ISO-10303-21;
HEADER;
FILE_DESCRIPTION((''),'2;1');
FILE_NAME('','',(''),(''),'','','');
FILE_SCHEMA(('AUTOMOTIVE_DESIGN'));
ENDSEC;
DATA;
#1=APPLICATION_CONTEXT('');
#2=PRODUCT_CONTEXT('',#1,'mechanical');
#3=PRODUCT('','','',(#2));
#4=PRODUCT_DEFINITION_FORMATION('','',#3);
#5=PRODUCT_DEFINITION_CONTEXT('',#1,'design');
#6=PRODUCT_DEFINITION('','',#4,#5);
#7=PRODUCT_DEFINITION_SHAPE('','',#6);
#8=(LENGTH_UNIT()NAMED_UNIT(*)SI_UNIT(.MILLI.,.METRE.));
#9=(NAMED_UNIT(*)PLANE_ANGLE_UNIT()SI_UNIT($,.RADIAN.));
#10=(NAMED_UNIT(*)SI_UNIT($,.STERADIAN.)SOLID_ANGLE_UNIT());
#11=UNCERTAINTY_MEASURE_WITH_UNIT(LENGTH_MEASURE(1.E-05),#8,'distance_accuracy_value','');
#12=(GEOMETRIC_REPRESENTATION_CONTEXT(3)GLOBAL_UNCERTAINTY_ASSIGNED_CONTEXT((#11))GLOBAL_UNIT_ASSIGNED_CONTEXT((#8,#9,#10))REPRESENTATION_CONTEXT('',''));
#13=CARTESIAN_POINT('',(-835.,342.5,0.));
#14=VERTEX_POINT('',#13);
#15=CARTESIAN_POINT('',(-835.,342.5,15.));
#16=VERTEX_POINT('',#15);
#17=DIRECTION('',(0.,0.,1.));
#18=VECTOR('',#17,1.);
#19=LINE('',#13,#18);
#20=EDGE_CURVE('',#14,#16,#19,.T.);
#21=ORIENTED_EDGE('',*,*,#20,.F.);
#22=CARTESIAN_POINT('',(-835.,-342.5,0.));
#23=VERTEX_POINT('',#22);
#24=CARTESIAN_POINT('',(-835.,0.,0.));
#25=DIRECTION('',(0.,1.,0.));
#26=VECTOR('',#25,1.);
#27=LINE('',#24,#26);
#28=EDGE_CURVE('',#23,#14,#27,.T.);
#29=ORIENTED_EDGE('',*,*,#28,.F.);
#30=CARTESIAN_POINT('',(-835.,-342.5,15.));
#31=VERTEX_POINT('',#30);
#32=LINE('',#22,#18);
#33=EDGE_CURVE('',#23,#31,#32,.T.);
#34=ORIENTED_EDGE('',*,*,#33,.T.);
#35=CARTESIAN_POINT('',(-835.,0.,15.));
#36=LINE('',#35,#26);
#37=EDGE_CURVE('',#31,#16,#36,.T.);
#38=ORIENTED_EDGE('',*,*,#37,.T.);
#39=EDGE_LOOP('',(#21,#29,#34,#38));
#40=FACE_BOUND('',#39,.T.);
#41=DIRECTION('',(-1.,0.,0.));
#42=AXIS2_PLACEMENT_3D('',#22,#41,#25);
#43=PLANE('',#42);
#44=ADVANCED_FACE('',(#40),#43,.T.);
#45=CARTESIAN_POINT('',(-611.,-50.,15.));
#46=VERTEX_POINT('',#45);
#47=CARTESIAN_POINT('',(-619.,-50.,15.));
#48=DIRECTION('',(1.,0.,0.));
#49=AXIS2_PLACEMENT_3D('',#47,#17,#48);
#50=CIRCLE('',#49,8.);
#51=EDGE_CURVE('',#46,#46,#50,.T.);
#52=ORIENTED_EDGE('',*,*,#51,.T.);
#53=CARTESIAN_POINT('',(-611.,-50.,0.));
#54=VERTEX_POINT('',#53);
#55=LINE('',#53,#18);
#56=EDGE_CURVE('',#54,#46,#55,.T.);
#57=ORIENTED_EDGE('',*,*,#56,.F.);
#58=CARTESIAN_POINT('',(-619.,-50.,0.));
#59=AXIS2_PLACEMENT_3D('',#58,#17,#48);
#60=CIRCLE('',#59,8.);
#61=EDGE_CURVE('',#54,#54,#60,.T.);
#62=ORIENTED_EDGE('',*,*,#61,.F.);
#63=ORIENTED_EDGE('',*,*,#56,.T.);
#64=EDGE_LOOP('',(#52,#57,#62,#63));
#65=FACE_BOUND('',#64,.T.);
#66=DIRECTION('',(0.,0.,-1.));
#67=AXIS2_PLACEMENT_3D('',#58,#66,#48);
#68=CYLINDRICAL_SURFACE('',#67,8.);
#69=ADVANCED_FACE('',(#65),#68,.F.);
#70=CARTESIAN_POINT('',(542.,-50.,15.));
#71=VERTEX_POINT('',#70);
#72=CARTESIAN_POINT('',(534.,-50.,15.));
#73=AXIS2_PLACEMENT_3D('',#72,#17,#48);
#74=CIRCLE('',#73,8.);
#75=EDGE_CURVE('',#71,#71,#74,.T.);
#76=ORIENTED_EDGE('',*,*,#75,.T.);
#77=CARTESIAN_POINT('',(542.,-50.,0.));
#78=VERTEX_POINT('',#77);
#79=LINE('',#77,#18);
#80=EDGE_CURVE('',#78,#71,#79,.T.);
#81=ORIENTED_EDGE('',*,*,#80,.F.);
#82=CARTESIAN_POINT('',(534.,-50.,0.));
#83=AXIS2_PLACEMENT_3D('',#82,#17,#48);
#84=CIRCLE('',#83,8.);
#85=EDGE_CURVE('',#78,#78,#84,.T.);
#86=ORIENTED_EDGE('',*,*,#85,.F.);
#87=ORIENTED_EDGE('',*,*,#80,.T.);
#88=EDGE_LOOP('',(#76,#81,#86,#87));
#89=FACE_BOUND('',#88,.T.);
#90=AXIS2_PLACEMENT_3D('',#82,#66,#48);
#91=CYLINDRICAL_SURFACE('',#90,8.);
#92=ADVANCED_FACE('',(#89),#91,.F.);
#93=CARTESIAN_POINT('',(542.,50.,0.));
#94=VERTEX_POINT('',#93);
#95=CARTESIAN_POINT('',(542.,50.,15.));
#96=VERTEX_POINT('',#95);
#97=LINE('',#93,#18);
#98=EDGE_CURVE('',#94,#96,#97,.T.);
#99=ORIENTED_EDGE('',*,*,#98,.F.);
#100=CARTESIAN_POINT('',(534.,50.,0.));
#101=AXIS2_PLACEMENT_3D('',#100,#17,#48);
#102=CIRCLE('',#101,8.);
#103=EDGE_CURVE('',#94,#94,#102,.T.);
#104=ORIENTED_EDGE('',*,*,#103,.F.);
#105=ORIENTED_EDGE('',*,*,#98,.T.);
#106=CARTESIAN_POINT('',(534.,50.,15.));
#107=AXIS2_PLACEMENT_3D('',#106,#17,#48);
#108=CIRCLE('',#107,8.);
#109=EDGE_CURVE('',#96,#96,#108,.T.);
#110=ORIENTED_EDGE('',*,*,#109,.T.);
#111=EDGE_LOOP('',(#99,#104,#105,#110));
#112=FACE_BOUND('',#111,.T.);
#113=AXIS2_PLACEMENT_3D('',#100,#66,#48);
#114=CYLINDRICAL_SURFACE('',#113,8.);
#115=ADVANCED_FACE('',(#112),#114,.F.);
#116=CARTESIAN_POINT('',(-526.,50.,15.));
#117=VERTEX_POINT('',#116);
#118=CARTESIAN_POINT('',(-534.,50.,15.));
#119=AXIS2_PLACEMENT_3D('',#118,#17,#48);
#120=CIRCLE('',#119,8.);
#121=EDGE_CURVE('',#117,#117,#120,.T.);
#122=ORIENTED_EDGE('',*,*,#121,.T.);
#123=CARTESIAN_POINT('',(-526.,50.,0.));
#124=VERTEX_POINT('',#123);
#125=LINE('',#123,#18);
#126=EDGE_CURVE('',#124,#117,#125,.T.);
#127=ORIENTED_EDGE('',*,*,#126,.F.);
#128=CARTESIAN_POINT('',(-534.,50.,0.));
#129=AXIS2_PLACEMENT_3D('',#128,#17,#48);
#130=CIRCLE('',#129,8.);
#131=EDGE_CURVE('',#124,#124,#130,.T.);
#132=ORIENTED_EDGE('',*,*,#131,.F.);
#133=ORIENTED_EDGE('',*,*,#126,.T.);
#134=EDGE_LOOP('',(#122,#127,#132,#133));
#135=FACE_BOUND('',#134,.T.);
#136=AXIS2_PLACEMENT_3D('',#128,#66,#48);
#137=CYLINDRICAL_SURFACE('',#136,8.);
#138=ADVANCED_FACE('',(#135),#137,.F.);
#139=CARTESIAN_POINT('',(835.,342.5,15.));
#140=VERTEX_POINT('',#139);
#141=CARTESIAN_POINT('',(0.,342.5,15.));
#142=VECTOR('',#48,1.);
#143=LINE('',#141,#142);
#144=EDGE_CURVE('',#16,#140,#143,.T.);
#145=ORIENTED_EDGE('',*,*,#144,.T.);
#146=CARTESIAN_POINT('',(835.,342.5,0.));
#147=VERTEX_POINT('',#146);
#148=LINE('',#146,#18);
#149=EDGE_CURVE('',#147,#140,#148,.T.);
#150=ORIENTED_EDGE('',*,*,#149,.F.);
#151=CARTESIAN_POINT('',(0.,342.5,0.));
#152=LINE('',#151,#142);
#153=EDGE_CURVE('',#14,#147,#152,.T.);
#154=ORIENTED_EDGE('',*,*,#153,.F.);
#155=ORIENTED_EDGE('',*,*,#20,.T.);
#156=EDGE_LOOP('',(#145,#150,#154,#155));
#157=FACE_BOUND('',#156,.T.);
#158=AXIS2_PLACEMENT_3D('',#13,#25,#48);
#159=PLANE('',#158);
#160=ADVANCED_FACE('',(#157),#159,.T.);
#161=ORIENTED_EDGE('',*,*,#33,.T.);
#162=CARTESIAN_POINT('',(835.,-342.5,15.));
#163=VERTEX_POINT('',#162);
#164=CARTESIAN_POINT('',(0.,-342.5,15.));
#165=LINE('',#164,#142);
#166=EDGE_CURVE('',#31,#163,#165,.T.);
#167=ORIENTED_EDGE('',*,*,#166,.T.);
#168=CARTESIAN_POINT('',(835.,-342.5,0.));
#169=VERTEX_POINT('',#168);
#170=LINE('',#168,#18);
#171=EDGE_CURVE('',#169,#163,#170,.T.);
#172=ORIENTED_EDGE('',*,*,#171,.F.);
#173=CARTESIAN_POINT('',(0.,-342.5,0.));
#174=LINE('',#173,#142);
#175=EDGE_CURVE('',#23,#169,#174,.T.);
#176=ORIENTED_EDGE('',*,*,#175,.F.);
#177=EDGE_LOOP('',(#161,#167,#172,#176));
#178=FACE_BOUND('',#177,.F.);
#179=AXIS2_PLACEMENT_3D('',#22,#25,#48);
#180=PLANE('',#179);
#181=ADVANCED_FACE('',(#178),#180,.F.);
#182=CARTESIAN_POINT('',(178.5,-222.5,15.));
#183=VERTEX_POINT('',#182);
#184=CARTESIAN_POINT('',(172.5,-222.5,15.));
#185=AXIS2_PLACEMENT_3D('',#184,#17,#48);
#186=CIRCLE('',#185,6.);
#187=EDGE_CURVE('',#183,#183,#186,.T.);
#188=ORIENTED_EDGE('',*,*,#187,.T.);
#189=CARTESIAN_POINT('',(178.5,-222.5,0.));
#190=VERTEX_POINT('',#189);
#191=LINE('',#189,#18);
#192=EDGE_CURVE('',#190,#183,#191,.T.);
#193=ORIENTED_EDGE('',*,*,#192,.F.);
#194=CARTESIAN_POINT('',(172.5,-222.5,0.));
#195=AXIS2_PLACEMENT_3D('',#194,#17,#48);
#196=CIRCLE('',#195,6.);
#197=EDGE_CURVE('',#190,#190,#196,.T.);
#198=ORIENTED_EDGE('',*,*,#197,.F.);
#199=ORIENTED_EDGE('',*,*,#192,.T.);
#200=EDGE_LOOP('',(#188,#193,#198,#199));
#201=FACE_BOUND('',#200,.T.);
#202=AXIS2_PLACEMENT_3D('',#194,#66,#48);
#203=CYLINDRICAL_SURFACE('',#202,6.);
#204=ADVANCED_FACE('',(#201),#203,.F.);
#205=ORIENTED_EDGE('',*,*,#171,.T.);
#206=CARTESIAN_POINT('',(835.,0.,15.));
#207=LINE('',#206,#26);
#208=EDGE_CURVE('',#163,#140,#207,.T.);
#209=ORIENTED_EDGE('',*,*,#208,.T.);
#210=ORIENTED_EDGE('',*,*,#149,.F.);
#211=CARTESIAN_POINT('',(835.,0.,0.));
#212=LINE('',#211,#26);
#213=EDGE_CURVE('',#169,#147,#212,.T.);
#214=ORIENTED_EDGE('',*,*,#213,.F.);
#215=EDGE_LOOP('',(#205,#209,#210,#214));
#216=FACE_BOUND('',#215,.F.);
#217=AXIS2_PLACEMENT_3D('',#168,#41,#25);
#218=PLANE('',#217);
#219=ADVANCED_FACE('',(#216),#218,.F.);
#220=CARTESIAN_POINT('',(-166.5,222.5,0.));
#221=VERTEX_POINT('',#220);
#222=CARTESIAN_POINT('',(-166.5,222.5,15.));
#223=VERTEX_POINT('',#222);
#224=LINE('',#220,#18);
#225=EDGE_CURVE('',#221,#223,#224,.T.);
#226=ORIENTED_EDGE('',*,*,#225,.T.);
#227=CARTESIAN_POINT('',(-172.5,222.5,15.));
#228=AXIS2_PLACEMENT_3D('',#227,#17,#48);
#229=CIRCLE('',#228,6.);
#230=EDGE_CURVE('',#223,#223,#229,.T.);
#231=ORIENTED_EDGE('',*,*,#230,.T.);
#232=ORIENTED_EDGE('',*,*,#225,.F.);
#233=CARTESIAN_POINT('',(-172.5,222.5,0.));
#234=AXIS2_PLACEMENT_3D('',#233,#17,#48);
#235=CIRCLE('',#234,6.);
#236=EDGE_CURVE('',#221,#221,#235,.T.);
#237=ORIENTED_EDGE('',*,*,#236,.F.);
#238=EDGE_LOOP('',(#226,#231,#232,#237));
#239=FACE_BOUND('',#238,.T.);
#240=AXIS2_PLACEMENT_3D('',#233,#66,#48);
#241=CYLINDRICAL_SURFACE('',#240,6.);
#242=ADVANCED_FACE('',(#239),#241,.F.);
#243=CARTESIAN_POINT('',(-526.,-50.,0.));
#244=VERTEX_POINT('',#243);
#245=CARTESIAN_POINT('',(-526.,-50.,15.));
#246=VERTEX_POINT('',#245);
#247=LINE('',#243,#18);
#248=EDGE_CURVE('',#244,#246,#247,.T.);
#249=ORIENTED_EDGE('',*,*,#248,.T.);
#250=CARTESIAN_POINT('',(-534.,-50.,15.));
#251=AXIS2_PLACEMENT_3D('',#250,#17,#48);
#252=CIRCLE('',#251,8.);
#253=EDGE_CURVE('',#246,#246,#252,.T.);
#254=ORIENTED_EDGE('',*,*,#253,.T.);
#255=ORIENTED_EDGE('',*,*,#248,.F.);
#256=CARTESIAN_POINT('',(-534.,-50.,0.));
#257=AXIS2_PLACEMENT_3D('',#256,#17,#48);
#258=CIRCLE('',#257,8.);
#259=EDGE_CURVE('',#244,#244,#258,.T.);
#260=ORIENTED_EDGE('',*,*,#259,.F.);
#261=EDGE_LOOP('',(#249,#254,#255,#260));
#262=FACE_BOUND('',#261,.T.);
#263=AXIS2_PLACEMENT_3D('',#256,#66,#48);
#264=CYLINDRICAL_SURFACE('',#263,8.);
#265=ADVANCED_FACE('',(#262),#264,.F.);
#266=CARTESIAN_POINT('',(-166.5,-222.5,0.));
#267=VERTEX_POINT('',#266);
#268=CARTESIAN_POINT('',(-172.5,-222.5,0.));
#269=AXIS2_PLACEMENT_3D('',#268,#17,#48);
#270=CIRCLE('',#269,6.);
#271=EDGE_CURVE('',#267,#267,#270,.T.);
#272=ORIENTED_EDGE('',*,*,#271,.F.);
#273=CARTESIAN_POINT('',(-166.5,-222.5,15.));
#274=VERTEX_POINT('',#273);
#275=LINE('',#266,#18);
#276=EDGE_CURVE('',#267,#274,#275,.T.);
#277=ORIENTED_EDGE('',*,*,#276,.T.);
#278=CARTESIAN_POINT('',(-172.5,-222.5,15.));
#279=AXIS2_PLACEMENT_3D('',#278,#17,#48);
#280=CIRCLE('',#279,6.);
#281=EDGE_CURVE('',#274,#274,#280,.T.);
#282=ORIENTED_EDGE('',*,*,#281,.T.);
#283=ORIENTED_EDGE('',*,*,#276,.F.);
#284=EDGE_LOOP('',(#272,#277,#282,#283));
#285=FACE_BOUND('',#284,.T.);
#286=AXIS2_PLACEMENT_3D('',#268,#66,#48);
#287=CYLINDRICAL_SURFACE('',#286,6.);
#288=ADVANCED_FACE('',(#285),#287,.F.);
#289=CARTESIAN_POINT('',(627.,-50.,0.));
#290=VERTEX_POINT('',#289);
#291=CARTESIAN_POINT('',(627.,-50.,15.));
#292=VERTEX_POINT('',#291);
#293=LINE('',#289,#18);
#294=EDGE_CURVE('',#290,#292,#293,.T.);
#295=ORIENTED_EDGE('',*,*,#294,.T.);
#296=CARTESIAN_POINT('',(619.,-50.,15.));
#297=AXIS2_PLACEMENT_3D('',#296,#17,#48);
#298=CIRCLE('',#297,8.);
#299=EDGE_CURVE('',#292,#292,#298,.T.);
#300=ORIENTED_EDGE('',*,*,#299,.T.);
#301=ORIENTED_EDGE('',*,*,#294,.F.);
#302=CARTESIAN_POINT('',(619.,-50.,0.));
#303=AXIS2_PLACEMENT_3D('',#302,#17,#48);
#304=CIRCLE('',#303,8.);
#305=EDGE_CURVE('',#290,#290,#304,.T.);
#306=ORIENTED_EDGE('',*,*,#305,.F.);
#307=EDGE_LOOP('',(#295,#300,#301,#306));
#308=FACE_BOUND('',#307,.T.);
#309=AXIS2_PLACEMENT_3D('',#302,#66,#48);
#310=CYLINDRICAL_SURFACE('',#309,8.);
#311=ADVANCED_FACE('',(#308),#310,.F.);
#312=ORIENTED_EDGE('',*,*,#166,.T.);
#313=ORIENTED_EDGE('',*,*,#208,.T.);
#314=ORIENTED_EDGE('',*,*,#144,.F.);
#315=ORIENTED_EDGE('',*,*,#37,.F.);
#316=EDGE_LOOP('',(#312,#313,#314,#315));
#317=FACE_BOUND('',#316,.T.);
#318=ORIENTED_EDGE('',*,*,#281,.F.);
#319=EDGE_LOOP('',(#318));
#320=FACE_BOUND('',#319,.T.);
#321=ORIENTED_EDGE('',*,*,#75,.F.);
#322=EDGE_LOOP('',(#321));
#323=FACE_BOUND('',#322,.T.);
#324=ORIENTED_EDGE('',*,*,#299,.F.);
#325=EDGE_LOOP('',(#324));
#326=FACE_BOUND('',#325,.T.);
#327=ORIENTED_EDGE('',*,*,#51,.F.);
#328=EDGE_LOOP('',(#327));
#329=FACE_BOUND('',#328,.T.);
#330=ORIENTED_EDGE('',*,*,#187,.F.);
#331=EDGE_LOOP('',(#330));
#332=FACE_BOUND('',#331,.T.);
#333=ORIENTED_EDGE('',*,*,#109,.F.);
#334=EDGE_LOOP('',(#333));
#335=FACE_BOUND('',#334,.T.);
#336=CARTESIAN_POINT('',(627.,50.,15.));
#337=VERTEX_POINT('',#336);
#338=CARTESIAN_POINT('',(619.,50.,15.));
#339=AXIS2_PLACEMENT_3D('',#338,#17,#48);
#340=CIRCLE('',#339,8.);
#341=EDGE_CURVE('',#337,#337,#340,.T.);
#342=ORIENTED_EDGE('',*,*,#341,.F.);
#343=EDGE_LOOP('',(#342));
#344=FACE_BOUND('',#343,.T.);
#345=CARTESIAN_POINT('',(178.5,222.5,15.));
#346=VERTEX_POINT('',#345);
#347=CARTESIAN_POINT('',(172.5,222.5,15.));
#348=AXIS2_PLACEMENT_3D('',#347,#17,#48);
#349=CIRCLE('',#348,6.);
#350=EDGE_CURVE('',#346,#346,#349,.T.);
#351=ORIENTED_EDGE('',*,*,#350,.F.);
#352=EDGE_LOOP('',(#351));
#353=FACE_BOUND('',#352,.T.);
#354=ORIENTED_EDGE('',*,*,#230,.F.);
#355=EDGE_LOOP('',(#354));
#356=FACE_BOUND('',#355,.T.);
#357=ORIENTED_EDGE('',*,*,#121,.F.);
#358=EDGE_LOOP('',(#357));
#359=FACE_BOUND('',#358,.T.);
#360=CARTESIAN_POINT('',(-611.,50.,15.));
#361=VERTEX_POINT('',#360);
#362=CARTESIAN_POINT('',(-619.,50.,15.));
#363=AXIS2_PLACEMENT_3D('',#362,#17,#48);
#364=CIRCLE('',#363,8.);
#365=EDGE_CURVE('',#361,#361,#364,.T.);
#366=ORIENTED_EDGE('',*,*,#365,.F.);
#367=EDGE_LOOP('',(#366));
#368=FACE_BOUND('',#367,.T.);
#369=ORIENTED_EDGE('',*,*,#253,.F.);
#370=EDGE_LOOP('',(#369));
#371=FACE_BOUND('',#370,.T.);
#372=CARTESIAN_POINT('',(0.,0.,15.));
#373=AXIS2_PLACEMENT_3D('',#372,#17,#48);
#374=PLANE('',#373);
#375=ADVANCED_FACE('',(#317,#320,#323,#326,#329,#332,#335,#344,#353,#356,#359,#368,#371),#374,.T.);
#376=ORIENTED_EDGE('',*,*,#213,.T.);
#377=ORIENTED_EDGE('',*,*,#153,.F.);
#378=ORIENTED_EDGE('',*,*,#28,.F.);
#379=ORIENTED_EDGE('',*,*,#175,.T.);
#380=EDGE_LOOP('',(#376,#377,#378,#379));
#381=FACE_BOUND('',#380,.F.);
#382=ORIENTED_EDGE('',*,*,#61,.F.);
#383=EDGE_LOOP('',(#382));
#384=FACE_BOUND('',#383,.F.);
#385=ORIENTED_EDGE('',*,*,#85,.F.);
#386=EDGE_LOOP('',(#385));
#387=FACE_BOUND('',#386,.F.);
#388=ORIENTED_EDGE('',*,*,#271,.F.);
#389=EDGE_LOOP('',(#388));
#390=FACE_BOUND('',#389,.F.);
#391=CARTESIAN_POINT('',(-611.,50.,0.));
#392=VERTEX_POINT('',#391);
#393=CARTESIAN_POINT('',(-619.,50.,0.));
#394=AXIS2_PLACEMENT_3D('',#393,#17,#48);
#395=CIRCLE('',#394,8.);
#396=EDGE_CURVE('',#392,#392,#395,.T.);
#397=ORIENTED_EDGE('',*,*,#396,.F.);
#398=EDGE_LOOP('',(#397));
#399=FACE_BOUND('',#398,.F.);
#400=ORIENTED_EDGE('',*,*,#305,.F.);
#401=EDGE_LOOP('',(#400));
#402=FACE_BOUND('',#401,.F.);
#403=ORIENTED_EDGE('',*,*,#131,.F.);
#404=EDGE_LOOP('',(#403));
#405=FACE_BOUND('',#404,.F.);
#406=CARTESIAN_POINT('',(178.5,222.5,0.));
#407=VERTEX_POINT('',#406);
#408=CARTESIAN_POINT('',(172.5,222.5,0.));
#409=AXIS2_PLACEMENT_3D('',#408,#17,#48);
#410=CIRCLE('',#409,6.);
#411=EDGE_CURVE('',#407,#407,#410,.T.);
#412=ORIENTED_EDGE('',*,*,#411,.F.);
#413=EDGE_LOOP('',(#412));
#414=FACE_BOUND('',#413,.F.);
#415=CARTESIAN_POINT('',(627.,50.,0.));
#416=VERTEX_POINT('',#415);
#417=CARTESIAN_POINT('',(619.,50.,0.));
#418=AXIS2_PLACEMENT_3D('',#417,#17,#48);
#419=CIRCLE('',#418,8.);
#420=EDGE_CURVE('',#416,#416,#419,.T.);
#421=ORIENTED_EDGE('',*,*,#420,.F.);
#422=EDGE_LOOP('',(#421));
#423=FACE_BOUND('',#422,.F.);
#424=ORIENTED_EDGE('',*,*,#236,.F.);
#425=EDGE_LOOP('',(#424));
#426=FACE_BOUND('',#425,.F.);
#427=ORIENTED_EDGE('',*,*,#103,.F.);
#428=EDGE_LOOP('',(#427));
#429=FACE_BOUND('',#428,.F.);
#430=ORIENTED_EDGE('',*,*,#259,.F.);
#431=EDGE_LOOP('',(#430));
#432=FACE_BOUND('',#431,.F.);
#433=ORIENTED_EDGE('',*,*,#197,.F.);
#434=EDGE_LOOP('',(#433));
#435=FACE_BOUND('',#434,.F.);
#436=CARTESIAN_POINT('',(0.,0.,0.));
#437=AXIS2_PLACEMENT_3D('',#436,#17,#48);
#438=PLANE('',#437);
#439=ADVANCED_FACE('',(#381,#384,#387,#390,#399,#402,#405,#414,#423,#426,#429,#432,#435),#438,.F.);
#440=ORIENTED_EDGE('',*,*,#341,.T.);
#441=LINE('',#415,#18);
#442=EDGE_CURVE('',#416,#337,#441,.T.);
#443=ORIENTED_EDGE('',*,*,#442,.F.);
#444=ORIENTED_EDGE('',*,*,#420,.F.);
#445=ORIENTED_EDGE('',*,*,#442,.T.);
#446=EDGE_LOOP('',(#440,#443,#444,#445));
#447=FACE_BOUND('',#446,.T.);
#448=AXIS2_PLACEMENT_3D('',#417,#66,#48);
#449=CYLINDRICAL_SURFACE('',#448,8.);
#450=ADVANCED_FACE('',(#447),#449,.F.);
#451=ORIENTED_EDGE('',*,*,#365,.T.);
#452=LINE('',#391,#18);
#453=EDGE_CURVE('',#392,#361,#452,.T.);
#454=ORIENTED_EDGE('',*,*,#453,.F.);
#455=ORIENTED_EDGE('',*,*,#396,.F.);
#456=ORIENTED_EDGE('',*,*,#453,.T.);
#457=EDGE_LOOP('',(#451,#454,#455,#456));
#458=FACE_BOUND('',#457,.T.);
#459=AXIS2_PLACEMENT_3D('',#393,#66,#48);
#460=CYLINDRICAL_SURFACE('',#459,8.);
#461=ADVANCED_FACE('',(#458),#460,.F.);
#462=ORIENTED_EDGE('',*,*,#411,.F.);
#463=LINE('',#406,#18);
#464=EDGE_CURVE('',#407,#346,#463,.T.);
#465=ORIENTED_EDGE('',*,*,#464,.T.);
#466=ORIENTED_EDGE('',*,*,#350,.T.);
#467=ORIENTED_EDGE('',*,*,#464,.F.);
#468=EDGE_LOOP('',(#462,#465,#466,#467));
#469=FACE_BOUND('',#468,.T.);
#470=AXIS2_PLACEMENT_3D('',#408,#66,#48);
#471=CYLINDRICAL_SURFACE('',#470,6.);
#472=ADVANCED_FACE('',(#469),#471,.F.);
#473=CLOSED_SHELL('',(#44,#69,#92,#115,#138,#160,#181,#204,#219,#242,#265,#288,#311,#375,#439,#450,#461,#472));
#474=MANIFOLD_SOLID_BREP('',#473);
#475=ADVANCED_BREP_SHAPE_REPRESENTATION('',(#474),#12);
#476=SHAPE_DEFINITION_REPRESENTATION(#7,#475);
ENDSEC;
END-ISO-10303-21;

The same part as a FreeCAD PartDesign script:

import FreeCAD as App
import Part
import Sketcher
from FreeCAD import Vector
Q = App.Units.Quantity


def add_polygon(sketch, points):
    """Adds a closed chain of lines whose ends are joined by coincident constraints."""
    first, n = sketch.GeometryCount, len(points)
    for a, b in zip(points, points[1:] + points[:1]):
        sketch.addGeometry(Part.LineSegment(App.Vector(*a, 0), App.Vector(*b, 0)), False)
    for i in range(n):
        sketch.addConstraint(Sketcher.Constraint("Coincident", first + i, 2, first + (i + 1) % n, 1))

doc = App.newDocument("Part")
params = doc.addObject("Spreadsheet::Sheet", "Params")
for row, (alias, value) in enumerate([
    ("sketch1_diameter", "12 mm"),
    ("sketch1_diameter2", "16 mm"),
    ("sketch1_width", "1670 mm"),
    ("sketch1_height", "685 mm"),
    ("pad1_length", "15 mm"),
], start=1):
    params.set(f"A{row}", alias)
    params.set(f"B{row}", "=" + value)
    params.setAlias(f"B{row}", alias)

body = doc.addObject("PartDesign::Body", "Body")

# Sketch on XY plane
sketch1 = body.newObject("Sketcher::SketchObject", "Sketch")
sketch1.AttachmentSupport = (doc.getObject("XY_Plane"), [""])
sketch1.MapMode = "FlatFace"
add_polygon(sketch1, [(-835, 342.5), (-835, -342.5), (835, -342.5), (835, 342.5)])  # lines 0-3
sketch1.addGeometry(Part.Circle(Vector(-172.5, -222.5, 0), Vector(0, 0, 1), 6), False)  # 4
sketch1.addGeometry(Part.Circle(Vector(-619, -50, 0), Vector(0, 0, 1), 8), False)  # 5
sketch1.addGeometry(Part.Circle(Vector(-534, -50, 0), Vector(0, 0, 1), 8), False)  # 6
sketch1.addGeometry(Part.Circle(Vector(172.5, -222.5, 0), Vector(0, 0, 1), 6), False)  # 7
sketch1.addGeometry(Part.Circle(Vector(534, -50, 0), Vector(0, 0, 1), 8), False)  # 8
sketch1.addGeometry(Part.Circle(Vector(619, -50, 0), Vector(0, 0, 1), 8), False)  # 9
sketch1.addGeometry(Part.Circle(Vector(-619, 50, 0), Vector(0, 0, 1), 8), False)  # 10
sketch1.addGeometry(Part.Circle(Vector(-534, 50, 0), Vector(0, 0, 1), 8), False)  # 11
sketch1.addGeometry(Part.Circle(Vector(-172.5, 222.5, 0), Vector(0, 0, 1), 6), False)  # 12
sketch1.addGeometry(Part.Circle(Vector(534, 50, 0), Vector(0, 0, 1), 8), False)  # 13
sketch1.addGeometry(Part.Circle(Vector(619, 50, 0), Vector(0, 0, 1), 8), False)  # 14
sketch1.addGeometry(Part.Circle(Vector(172.5, 222.5, 0), Vector(0, 0, 1), 6), False)  # 15
sketch1.addConstraint([
    Sketcher.Constraint("Vertical", 0),
    Sketcher.Constraint("Horizontal", 1),
    Sketcher.Constraint("Vertical", 2),
    Sketcher.Constraint("Horizontal", 3),
    Sketcher.Constraint("Equal", 5, 6),
    Sketcher.Constraint("Equal", 4, 7),
    Sketcher.Constraint("Equal", 6, 8),
    Sketcher.Constraint("Equal", 8, 9),
    Sketcher.Constraint("Equal", 9, 10),
    Sketcher.Constraint("Equal", 10, 11),
    Sketcher.Constraint("Equal", 7, 12),
    Sketcher.Constraint("Equal", 11, 13),
    Sketcher.Constraint("Equal", 13, 14),
    Sketcher.Constraint("Equal", 12, 15),
    Sketcher.Constraint("Symmetric", 9, 3, 10, 3, -1, 1),
    Sketcher.Constraint("Symmetric", 8, 3, 11, 3, -1, 1),
    Sketcher.Constraint("Symmetric", 7, 3, 12, 3, -1, 1),
    Sketcher.Constraint("Symmetric", 6, 3, 13, 3, -1, 1),
    Sketcher.Constraint("Symmetric", 5, 3, 14, 3, -1, 1),
    Sketcher.Constraint("Symmetric", 4, 3, 15, 3, -1, 1),
    Sketcher.Constraint("Symmetric", 0, 2, 2, 2, -1, 1),
    Sketcher.Constraint("Symmetric", 4, 3, 7, 3, -2),
    Sketcher.Constraint("Symmetric", 6, 3, 8, 3, -2),
    Sketcher.Constraint("Symmetric", 5, 3, 9, 3, -2),
    Sketcher.Constraint("Horizontal", 5, 3, 6, 3),
    Sketcher.Constraint("Diameter", 4, Q("12 mm")),
    Sketcher.Constraint("Diameter", 5, Q("16 mm")),
    Sketcher.Constraint("DistanceX", 1, 1, 1, 2, Q("1670 mm")),
    Sketcher.Constraint("DistanceY", 0, 2, 0, 1, Q("685 mm")),
    Sketcher.Constraint("DistanceX", 5, 3, -1, 1, Q("619 mm")),
    Sketcher.Constraint("DistanceY", 5, 3, -1, 1, Q("50 mm")),
    Sketcher.Constraint("DistanceX", 6, 3, -1, 1, Q("534 mm")),
    Sketcher.Constraint("DistanceX", 4, 3, 7, 3, Q("345 mm")),
    Sketcher.Constraint("DistanceY", 4, 3, 12, 3, Q("445 mm")),
])
sketch1.setExpression("Constraints[29]", "Params.sketch1_diameter")
sketch1.setExpression("Constraints[30]", "Params.sketch1_diameter2")
sketch1.setExpression("Constraints[31]", "Params.sketch1_width")
sketch1.setExpression("Constraints[32]", "Params.sketch1_height")
pad1 = body.newObject("PartDesign::Pad", "Pad")
pad1.Profile = sketch1
pad1.setExpression("Length", "Params.pad1_length")

doc.recompute()
